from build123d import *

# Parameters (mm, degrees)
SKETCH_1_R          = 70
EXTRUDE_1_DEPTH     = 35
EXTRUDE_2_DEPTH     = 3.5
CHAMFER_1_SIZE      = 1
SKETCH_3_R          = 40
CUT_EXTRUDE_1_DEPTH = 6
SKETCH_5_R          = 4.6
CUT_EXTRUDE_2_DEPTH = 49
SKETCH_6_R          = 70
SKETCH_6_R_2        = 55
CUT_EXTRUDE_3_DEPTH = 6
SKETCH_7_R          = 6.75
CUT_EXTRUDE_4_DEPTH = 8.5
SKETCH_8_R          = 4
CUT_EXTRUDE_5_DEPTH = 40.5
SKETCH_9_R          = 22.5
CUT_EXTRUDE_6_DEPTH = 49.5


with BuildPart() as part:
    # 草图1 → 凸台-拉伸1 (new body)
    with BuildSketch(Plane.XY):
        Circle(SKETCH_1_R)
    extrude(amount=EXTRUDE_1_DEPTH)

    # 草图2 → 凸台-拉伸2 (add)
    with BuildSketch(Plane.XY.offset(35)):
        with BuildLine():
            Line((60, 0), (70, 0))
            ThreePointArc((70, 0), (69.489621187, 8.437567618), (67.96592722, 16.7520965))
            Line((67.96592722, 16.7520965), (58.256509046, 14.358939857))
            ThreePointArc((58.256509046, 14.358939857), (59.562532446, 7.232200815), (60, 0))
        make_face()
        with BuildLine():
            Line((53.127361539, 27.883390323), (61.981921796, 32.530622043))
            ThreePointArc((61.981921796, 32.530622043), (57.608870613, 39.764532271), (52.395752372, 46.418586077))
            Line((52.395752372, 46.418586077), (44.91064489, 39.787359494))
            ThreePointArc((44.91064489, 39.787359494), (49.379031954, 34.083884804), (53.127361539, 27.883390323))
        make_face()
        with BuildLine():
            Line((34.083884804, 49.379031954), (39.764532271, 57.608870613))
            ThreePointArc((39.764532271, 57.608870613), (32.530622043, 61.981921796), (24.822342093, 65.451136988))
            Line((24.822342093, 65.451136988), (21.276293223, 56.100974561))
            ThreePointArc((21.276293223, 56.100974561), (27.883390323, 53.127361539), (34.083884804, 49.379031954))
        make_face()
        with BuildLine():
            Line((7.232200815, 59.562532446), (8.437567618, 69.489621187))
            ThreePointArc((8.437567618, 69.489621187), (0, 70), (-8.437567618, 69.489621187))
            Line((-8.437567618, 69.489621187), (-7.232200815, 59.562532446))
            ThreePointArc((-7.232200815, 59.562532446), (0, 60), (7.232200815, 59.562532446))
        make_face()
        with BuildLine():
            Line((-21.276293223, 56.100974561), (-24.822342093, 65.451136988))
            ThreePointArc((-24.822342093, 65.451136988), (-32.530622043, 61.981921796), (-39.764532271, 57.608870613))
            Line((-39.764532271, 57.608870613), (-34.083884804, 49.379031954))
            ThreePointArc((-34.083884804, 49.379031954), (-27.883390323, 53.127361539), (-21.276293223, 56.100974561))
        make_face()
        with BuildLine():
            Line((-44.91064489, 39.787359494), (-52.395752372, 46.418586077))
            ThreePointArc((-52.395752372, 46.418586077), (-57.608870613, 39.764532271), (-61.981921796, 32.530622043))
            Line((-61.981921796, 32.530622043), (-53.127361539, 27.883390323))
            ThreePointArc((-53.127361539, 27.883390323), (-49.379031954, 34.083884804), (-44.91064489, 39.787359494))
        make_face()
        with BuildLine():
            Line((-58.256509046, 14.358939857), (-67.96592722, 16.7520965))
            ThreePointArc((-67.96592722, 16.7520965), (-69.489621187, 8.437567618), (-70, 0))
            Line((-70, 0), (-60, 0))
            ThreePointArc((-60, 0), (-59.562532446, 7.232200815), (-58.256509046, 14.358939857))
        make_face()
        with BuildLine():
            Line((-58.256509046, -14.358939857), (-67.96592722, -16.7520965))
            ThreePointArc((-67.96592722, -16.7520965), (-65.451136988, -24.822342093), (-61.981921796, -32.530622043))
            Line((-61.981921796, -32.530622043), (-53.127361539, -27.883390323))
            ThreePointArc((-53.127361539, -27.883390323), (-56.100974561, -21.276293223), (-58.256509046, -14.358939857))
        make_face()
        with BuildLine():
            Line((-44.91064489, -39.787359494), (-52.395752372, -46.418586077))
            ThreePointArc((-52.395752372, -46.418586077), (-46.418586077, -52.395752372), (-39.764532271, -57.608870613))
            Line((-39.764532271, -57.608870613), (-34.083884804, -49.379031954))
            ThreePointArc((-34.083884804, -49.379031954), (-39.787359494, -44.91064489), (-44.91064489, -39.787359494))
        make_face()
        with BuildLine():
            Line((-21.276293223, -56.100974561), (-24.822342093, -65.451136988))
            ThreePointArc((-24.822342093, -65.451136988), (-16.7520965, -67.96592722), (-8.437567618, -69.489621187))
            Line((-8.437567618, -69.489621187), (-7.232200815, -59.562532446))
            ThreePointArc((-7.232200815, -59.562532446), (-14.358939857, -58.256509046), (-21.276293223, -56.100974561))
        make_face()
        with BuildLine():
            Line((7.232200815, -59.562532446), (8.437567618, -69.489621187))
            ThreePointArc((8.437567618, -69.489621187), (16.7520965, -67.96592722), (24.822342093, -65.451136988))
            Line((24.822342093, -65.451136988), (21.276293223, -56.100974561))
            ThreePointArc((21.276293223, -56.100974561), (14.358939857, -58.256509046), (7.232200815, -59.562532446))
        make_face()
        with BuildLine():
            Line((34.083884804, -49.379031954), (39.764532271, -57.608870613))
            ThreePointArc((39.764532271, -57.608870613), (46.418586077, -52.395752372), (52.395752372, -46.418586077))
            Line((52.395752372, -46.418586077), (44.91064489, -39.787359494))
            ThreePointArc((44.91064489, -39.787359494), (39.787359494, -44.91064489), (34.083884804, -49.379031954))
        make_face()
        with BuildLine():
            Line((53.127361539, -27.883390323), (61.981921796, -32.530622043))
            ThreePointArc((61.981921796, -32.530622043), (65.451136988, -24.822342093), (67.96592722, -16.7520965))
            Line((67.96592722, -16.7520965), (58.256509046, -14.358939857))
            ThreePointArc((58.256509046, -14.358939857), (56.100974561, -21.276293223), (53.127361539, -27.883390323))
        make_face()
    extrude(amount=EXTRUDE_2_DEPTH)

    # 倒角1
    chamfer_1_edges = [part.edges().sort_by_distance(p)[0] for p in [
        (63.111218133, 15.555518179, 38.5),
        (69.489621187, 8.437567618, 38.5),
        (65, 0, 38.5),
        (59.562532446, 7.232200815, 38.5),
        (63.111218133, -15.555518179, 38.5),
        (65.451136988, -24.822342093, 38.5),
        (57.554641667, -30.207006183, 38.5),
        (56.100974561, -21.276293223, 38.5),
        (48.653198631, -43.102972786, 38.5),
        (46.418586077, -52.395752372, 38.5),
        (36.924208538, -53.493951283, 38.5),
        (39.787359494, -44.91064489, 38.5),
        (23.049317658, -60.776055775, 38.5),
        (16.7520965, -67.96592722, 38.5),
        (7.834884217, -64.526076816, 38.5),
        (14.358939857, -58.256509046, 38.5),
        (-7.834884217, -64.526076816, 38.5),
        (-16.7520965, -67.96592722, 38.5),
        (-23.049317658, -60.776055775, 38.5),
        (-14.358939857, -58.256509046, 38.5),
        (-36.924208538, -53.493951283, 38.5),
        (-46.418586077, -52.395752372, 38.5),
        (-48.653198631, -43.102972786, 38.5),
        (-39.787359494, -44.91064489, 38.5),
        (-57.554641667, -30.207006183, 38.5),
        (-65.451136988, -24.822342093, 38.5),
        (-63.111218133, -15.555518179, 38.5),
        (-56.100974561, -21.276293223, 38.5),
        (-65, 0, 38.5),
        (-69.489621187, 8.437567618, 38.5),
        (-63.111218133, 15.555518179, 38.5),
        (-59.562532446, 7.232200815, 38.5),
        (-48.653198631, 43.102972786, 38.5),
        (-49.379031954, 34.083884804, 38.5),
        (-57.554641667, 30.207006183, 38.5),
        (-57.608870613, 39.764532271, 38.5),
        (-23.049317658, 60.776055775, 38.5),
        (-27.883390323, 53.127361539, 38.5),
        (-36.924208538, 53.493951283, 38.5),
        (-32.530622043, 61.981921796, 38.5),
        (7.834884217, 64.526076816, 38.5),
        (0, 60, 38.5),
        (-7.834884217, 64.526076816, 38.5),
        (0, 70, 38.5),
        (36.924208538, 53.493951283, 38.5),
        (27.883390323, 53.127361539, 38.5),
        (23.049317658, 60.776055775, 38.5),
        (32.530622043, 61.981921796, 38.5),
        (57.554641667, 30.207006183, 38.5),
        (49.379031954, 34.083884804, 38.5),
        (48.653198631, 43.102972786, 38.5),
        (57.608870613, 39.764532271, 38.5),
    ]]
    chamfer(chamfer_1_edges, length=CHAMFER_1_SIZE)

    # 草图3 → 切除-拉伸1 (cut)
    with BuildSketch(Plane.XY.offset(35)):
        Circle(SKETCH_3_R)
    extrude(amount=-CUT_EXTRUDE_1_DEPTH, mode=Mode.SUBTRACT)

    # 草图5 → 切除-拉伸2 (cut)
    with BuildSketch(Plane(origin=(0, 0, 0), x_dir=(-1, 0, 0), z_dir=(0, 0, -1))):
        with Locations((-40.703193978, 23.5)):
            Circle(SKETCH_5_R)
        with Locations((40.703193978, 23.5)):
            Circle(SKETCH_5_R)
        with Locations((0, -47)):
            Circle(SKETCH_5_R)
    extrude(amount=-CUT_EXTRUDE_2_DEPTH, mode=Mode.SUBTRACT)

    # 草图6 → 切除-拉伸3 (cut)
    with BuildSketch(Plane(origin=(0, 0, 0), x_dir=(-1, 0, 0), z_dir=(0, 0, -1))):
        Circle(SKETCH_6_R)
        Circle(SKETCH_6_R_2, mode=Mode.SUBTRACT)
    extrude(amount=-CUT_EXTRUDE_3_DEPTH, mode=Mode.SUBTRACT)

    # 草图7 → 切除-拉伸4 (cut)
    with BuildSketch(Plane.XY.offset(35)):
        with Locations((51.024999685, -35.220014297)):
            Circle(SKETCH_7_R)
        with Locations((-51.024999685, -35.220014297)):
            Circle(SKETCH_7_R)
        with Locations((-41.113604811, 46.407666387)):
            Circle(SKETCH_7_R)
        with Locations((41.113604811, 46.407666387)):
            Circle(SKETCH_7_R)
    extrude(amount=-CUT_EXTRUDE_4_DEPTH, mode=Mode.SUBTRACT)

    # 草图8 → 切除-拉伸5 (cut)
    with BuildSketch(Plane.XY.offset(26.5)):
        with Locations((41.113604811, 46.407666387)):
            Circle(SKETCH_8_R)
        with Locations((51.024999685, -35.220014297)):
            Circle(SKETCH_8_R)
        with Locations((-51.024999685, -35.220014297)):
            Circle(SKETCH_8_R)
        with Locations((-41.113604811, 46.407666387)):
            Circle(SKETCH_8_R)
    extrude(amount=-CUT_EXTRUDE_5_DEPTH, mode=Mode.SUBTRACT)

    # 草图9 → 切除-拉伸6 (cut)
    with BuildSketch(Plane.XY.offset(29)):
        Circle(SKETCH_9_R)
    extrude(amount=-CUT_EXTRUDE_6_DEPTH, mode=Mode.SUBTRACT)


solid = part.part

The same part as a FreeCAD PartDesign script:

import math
import FreeCAD as App
import Part
import Sketcher

V = App.Vector
Q = App.Units.Quantity


def edges_at(feature, points):
    """Names of the edges that pass closest to the given points."""
    edges = feature.Shape.Edges
    near = lambda p: min(range(len(edges)), key=lambda i: edges[i].distToShape(Part.Vertex(*p))[0])
    return sorted({f"Edge{near(p) + 1}" for p in points})

doc = App.newDocument("Part")
body = doc.addObject("PartDesign::Body", "Body")

sketch1 = body.newObject("Sketcher::SketchObject", "Sketch")
sketch1.AttachmentSupport = (doc.getObject("XY_Plane"), [""])
sketch1.MapMode = "FlatFace"
sketch1.addGeometry(Part.Circle(V(0, 0, 0), V(0, 0, 1), 70), False)
sketch1.addConstraint([
    Sketcher.Constraint("Coincident", 0, 3, -1, 1),
    Sketcher.Constraint("Diameter", 0, Q("140 mm")),
])
pad1 = body.newObject("PartDesign::Pad", "Pad")
pad1.Profile = sketch1
pad1.Length = 35

sketch2 = body.newObject("Sketcher::SketchObject", "Sketch001")
sketch2.AttachmentSupport = (doc.getObject("XY_Plane"), [""])
sketch2.MapMode = "FlatFace"
sketch2.AttachmentOffset = App.Placement(V(0, 0, 35), App.Rotation())
sketch2.addGeometry([
    Part.LineSegment(V(60, 0, 0), V(70, 0, 0)),
    Part.ArcOfCircle(Part.Circle(V(0, 0, 0), V(0, 0, 1), 70), math.radians(0), math.radians(13.85)),
    Part.LineSegment(V(68, 17, 0), V(58, 14, 0)),
    Part.ArcOfCircle(Part.Circle(V(0, 0, 0), V(0, 0, 1), 60), math.radians(0), math.radians(13.85)),
    Part.LineSegment(V(53, 28, 0), V(62, 33, 0)),
    Part.ArcOfCircle(Part.Circle(V(0, 0, 0), V(0, 0, 1), 70), math.radians(27.69), math.radians(41.54)),
    Part.LineSegment(V(52, 46, 0), V(45, 40, 0)),
    Part.ArcOfCircle(Part.Circle(V(0, 0, 0), V(0, 0, 1), 60), math.radians(27.69), math.radians(41.54)),
    Part.LineSegment(V(34, 49, 0), V(40, 58, 0)),
    Part.ArcOfCircle(Part.Circle(V(0, 0, 0), V(0, 0, 1), 70), math.radians(55.38), math.radians(69.23)),
    Part.LineSegment(V(25, 65, 0), V(21, 56, 0)),
    Part.ArcOfCircle(Part.Circle(V(0, 0, 0), V(0, 0, 1), 60), math.radians(55.38), math.radians(69.23)),
    Part.LineSegment(V(7, 60, 0), V(8, 69, 0)),
    Part.ArcOfCircle(Part.Circle(V(0, 0, 0), V(0, 0, 1), 70), math.radians(83.08), math.radians(96.92)),
    Part.LineSegment(V(-8, 69, 0), V(-7, 60, 0)),
    Part.ArcOfCircle(Part.Circle(V(0, 0, 0), V(0, 0, 1), 60), math.radians(83.08), math.radians(96.92)),
    Part.LineSegment(V(-21, 56, 0), V(-25, 65, 0)),
    Part.ArcOfCircle(Part.Circle(V(0, 0, 0), V(0, 0, 1), 70), math.radians(110.77), math.radians(124.62)),
    Part.LineSegment(V(-40, 58, 0), V(-34, 49, 0)),
    Part.ArcOfCircle(Part.Circle(V(0, 0, 0), V(0, 0, 1), 60), math.radians(110.77), math.radians(124.62)),
    Part.LineSegment(V(-45, 40, 0), V(-52, 46, 0)),
    Part.ArcOfCircle(Part.Circle(V(0, 0, 0), V(0, 0, 1), 70), math.radians(138.46), math.radians(152.31)),
    Part.LineSegment(V(-62, 33, 0), V(-53, 28, 0)),
    Part.ArcOfCircle(Part.Circle(V(0, 0, 0), V(0, 0, 1), 60), math.radians(138.46), math.radians(152.31)),
    Part.LineSegment(V(-58, 14, 0), V(-68, 17, 0)),
    Part.ArcOfCircle(Part.Circle(V(0, 0, 0), V(0, 0, 1), 70), math.radians(166.15), math.radians(180)),
    Part.LineSegment(V(-70, 0, 0), V(-60, 0, 0)),
    Part.ArcOfCircle(Part.Circle(V(0, 0, 0), V(0, 0, 1), 60), math.radians(166.15), math.radians(180)),
    Part.LineSegment(V(-58, -14, 0), V(-68, -17, 0)),
    Part.ArcOfCircle(Part.Circle(V(0, 0, 0), V(0, 0, 1), 70), math.radians(-166.15), math.radians(-152.31)),
    Part.LineSegment(V(-62, -33, 0), V(-53, -28, 0)),
    Part.ArcOfCircle(Part.Circle(V(0, 0, 0), V(0, 0, 1), 60), math.radians(-166.15), math.radians(-152.31)),
    Part.LineSegment(V(-45, -40, 0), V(-52, -46, 0)),
    Part.ArcOfCircle(Part.Circle(V(0, 0, 0), V(0, 0, 1), 70), math.radians(-138.46), math.radians(-124.62)),
    Part.LineSegment(V(-40, -58, 0), V(-34, -49, 0)),
    Part.ArcOfCircle(Part.Circle(V(0, 0, 0), V(0, 0, 1), 60), math.radians(-138.46), math.radians(-124.62)),
    Part.LineSegment(V(-21, -56, 0), V(-25, -65, 0)),
    Part.ArcOfCircle(Part.Circle(V(0, 0, 0), V(0, 0, 1), 70), math.radians(-110.77), math.radians(-96.92)),
    Part.LineSegment(V(-8, -69, 0), V(-7, -60, 0)),
    Part.ArcOfCircle(Part.Circle(V(0, 0, 0), V(0, 0, 1), 60), math.radians(-110.77), math.radians(-96.92)),
    Part.LineSegment(V(7, -60, 0), V(8, -69, 0)),
    Part.ArcOfCircle(Part.Circle(V(0, 0, 0), V(0, 0, 1), 70), math.radians(-83.08), math.radians(-69.23)),
    Part.LineSegment(V(25, -65, 0), V(21, -56, 0)),
    Part.ArcOfCircle(Part.Circle(V(0, 0, 0), V(0, 0, 1), 60), math.radians(-83.08), math.radians(-69.23)),
    Part.LineSegment(V(34, -49, 0), V(40, -58, 0)),
    Part.ArcOfCircle(Part.Circle(V(0, 0, 0), V(0, 0, 1), 70), math.radians(-55.38), math.radians(-41.54)),
    Part.LineSegment(V(52, -46, 0), V(45, -40, 0)),
    Part.ArcOfCircle(Part.Circle(V(0, 0, 0), V(0, 0, 1), 60), math.radians(-55.38), math.radians(-41.54)),
    Part.LineSegment(V(53, -28, 0), V(62, -33, 0)),
    Part.ArcOfCircle(Part.Circle(V(0, 0, 0), V(0, 0, 1), 70), math.radians(-27.69), math.radians(-13.85)),
    Part.LineSegment(V(68, -17, 0), V(58, -14, 0)),
    Part.ArcOfCircle(Part.Circle(V(0, 0, 0), V(0, 0, 1), 60), math.radians(-27.69), math.radians(-13.85)),
], False)
sketch2.addConstraint([
    Sketcher.Constraint("Coincident", 0, 2, 1, 1),
    Sketcher.Constraint("Coincident", 1, 2, 2, 1),
    Sketcher.Constraint("Coincident", 2, 2, 3, 2),
    Sketcher.Constraint("Coincident", 3, 1, 0, 1),
    Sketcher.Constraint("Coincident", 4, 2, 5, 1),
    Sketcher.Constraint("Coincident", 5, 2, 6, 1),
    Sketcher.Constraint("Coincident", 6, 2, 7, 2),
    Sketcher.Constraint("Coincident", 7, 1, 4, 1),
    Sketcher.Constraint("Coincident", 8, 2, 9, 1),
    Sketcher.Constraint("Coincident", 9, 2, 10, 1),
    Sketcher.Constraint("Coincident", 10, 2, 11, 2),
    Sketcher.Constraint("Coincident", 11, 1, 8, 1),
    Sketcher.Constraint("Coincident", 12, 2, 13, 1),
    Sketcher.Constraint("Coincident", 13, 2, 14, 1),
    Sketcher.Constraint("Coincident", 14, 2, 15, 2),
    Sketcher.Constraint("Coincident", 15, 1, 12, 1),
    Sketcher.Constraint("Coincident", 16, 2, 17, 1),
    Sketcher.Constraint("Coincident", 17, 2, 18, 1),
    Sketcher.Constraint("Coincident", 18, 2, 19, 2),
    Sketcher.Constraint("Coincident", 19, 1, 16, 1),
    Sketcher.Constraint("Coincident", 20, 2, 21, 1),
    Sketcher.Constraint("Coincident", 21, 2, 22, 1),
    Sketcher.Constraint("Coincident", 22, 2, 23, 2),
    Sketcher.Constraint("Coincident", 23, 1, 20, 1),
    Sketcher.Constraint("Coincident", 24, 2, 25, 1),
    Sketcher.Constraint("Coincident", 25, 2, 26, 1),
    Sketcher.Constraint("Coincident", 26, 2, 27, 2),
    Sketcher.Constraint("Coincident", 27, 1, 24, 1),
    Sketcher.Constraint("Coincident", 28, 2, 29, 1),
    Sketcher.Constraint("Coincident", 29, 2, 30, 1),
    Sketcher.Constraint("Coincident", 30, 2, 31, 2),
    Sketcher.Constraint("Coincident", 31, 1, 28, 1),
    Sketcher.Constraint("Coincident", 32, 2, 33, 1),
    Sketcher.Constraint("Coincident", 33, 2, 34, 1),
    Sketcher.Constraint("Coincident", 34, 2, 35, 2),
    Sketcher.Constraint("Coincident", 35, 1, 32, 1),
    Sketcher.Constraint("Coincident", 36, 2, 37, 1),
    Sketcher.Constraint("Coincident", 37, 2, 38, 1),
    Sketcher.Constraint("Coincident", 38, 2, 39, 2),
    Sketcher.Constraint("Coincident", 39, 1, 36, 1),
    Sketcher.Constraint("Coincident", 40, 2, 41, 1),
    Sketcher.Constraint("Coincident", 41, 2, 42, 1),
    Sketcher.Constraint("Coincident", 42, 2, 43, 2),
    Sketcher.Constraint("Coincident", 43, 1, 40, 1),
    Sketcher.Constraint("Coincident", 44, 2, 45, 1),
    Sketcher.Constraint("Coincident", 45, 2, 46, 1),
    Sketcher.Constraint("Coincident", 46, 2, 47, 2),
    Sketcher.Constraint("Coincident", 47, 1, 44, 1),
    Sketcher.Constraint("Coincident", 48, 2, 49, 1),
    Sketcher.Constraint("Coincident", 49, 2, 50, 1),
    Sketcher.Constraint("Coincident", 50, 2, 51, 2),
    Sketcher.Constraint("Coincident", 51, 1, 48, 1),
    Sketcher.Constraint("Horizontal", 0),
    Sketcher.Constraint("Horizontal", 26),
    Sketcher.Constraint("Coincident", 1, 3, -1, 1),
    Sketcher.Constraint("Coincident", 3, 3, -1, 1),
    Sketcher.Constraint("Coincident", 5, 3, -1, 1),
    Sketcher.Constraint("Coincident", 7, 3, -1, 1),
    Sketcher.Constraint("Coincident", 9, 3, -1, 1),
    Sketcher.Constraint("Coincident", 11, 3, -1, 1),
    Sketcher.Constraint("Coincident", 13, 3, -1, 1),
    Sketcher.Constraint("Coincident", 15, 3, -1, 1),
    Sketcher.Constraint("Coincident", 17, 3, -1, 1),
    Sketcher.Constraint("Coincident", 19, 3, -1, 1),
    Sketcher.Constraint("Coincident", 21, 3, -1, 1),
    Sketcher.Constraint("Coincident", 23, 3, -1, 1),
    Sketcher.Constraint("Coincident", 25, 3, -1, 1),
    Sketcher.Constraint("Coincident", 27, 3, -1, 1),
    Sketcher.Constraint("Coincident", 29, 3, -1, 1),
    Sketcher.Constraint("Coincident", 31, 3, -1, 1),
    Sketcher.Constraint("Coincident", 33, 3, -1, 1),
    Sketcher.Constraint("Coincident", 35, 3, -1, 1),
    Sketcher.Constraint("Coincident", 37, 3, -1, 1),
    Sketcher.Constraint("Coincident", 39, 3, -1, 1),
    Sketcher.Constraint("Coincident", 41, 3, -1, 1),
    Sketcher.Constraint("Coincident", 43, 3, -1, 1),
    Sketcher.Constraint("Coincident", 45, 3, -1, 1),
    Sketcher.Constraint("Coincident", 47, 3, -1, 1),
    Sketcher.Constraint("Coincident", 49, 3, -1, 1),
    Sketcher.Constraint("Coincident", 51, 3, -1, 1),
    Sketcher.Constraint("Equal", 1, 5),
    Sketcher.Constraint("Equal", 3, 7),
    Sketcher.Constraint("Equal", 5, 9),
    Sketcher.Constraint("Equal", 7, 11),
    Sketcher.Constraint("Equal", 9, 13),
    Sketcher.Constraint("Equal", 11, 15),
    Sketcher.Constraint("Equal", 13, 17),
    Sketcher.Constraint("Equal", 15, 19),
    Sketcher.Constraint("Equal", 17, 21),
    Sketcher.Constraint("Equal", 19, 23),
    Sketcher.Constraint("Equal", 21, 25),
    Sketcher.Constraint("Equal", 23, 27),
    Sketcher.Constraint("Equal", 25, 29),
    Sketcher.Constraint("Equal", 27, 31),
    Sketcher.Constraint("Equal", 29, 33),
    Sketcher.Constraint("Equal", 31, 35),
    Sketcher.Constraint("Equal", 33, 37),
    Sketcher.Constraint("Equal", 35, 39),
    Sketcher.Constraint("Equal", 37, 41),
    Sketcher.Constraint("Equal", 39, 43),
    Sketcher.Constraint("Equal", 41, 45),
    Sketcher.Constraint("Equal", 43, 47),
    Sketcher.Constraint("Equal", 45, 49),
    Sketcher.Constraint("Equal", 47, 51),
    Sketcher.Constraint("PointOnObject", 0, 2, -1),
    Sketcher.Constraint("PointOnObject", 25, 2, -1),
    Sketcher.Constraint("Parallel", 2, 28),
    Sketcher.Constraint("Parallel", 4, 30),
    Sketcher.Constraint("Parallel", 6, 32),
    Sketcher.Constraint("Parallel", 8, 34),
    Sketcher.Constraint("Parallel", 10, 36),
    Sketcher.Constraint("Parallel", 12, 38),
    Sketcher.Constraint("Parallel", 14, 40),
    Sketcher.Constraint("Parallel", 16, 42),
    Sketcher.Constraint("Parallel", 18, 44),
    Sketcher.Constraint("Parallel", 20, 46),
    Sketcher.Constraint("Parallel", 22, 48),
    Sketcher.Constraint("Parallel", 24, 50),
    Sketcher.Constraint("Horizontal", 12, 2, 13, 2),
    Sketcher.Constraint("Horizontal", 14, 2, 15, 1),
    Sketcher.Constraint("Horizontal", 9, 2, 16, 2),
    Sketcher.Constraint("Horizontal", 8, 2, 17, 2),
    Sketcher.Constraint("Horizontal", 11, 1, 18, 2),
    Sketcher.Constraint("Horizontal", 10, 2, 19, 1),
    Sketcher.Constraint("Horizontal", 5, 2, 20, 2),
    Sketcher.Constraint("Horizontal", 4, 2, 21, 2),
    Sketcher.Constraint("Horizontal", 7, 1, 22, 2),
    Sketcher.Constraint("Horizontal", 6, 2, 23, 1),
    Sketcher.Constraint("Horizontal", 1, 2, 24, 2),
    Sketcher.Constraint("Horizontal", 2, 2, 27, 1),
    Sketcher.Constraint("Horizontal", 37, 2, 40, 2),
    Sketcher.Constraint("Horizontal", 36, 2, 41, 2),
    Sketcher.Constraint("Horizontal", 33, 2, 44, 2),
    Sketcher.Constraint("Horizontal", 32, 2, 45, 2),
    Sketcher.Constraint("Horizontal", 29, 2, 48, 2),
    Sketcher.Constraint("Horizontal", 28, 2, 49, 2),
    Sketcher.Constraint("Vertical", 24, 2, 28, 2),
    Sketcher.Constraint("Vertical", 21, 2, 29, 2),
    Sketcher.Constraint("Vertical", 20, 2, 32, 2),
    Sketcher.Constraint("Vertical", 17, 2, 33, 2),
    Sketcher.Constraint("Vertical", 16, 2, 36, 2),
    Sketcher.Constraint("Vertical", 13, 2, 37, 2),
    Sketcher.Constraint("Radius", 1, Q("70 mm")),
    Sketcher.Constraint("Radius", 3, Q("60 mm")),
    Sketcher.Constraint("DistanceX", 14, 2, -1, 1, Q("7.232201 mm")),
    Sketcher.Constraint("DistanceX", -1, 1, 2, 2, Q("58.256509 mm")),
    Sketcher.Constraint("DistanceX", -1, 1, 4, 2, Q("61.981922 mm")),
    Sketcher.Constraint("DistanceY", -1, 1, 6, 2, Q("39.787359 mm")),
    Sketcher.Constraint("DistanceX", -1, 1, 7, 1, Q("53.127362 mm")),
    Sketcher.Constraint("DistanceY", -1, 1, 8, 2, Q("57.608871 mm")),
    Sketcher.Constraint("DistanceY", -1, 1, 11, 1, Q("49.379032 mm")),
    Sketcher.Constraint("DistanceY", -1, 1, 12, 2, Q("69.489621 mm")),
    Sketcher.Constraint("DistanceX", -1, 1, 1, 2, Q("67.965927 mm")),
    Sketcher.Constraint("DistanceX", -1, 1, 5, 2, Q("52.395752 mm")),
    Sketcher.Constraint("DistanceX", -1, 1, 9, 2, Q("24.822342 mm")),
    Sketcher.Constraint("DistanceX", -1, 1, 10, 2, Q("21.276293 mm")),
])
pad2 = body.newObject("PartDesign::Pad", "Pad001")
pad2.Profile = sketch2
pad2.Length = 3.5
doc.recompute()

chamfer = body.newObject("PartDesign::Chamfer", "Chamfer")
chamfer.Base = (pad2, edges_at(pad2, [
    (63.111, 15.556, 38.5),
    (69.49, 8.438, 38.5),
    (65, 0, 38.5),
    (59.563, 7.232, 38.5),
    (63.111, -15.556, 38.5),
    (65.451, -24.822, 38.5),
    (57.555, -30.207, 38.5),
    (56.101, -21.276, 38.5),
    (48.653, -43.103, 38.5),
    (46.419, -52.396, 38.5),
    (36.924, -53.494, 38.5),
    (39.787, -44.911, 38.5),
    (23.049, -60.776, 38.5),
    (16.752, -67.966, 38.5),
    (7.835, -64.526, 38.5),
    (14.359, -58.257, 38.5),
    (-7.835, -64.526, 38.5),
    (-16.752, -67.966, 38.5),
    (-23.049, -60.776, 38.5),
    (-14.359, -58.257, 38.5),
    (-36.924, -53.494, 38.5),
    (-46.419, -52.396, 38.5),
    (-48.653, -43.103, 38.5),
    (-39.787, -44.911, 38.5),
    (-57.555, -30.207, 38.5),
    (-65.451, -24.822, 38.5),
    (-63.111, -15.556, 38.5),
    (-56.101, -21.276, 38.5),
    (-65, 0, 38.5),
    (-69.49, 8.438, 38.5),
    (-63.111, 15.556, 38.5),
    (-59.563, 7.232, 38.5),
    (-48.653, 43.103, 38.5),
    (-49.379, 34.084, 38.5),
    (-57.555, 30.207, 38.5),
    (-57.609, 39.765, 38.5),
    (-23.049, 60.776, 38.5),
    (-27.883, 53.127, 38.5),
    (-36.924, 53.494, 38.5),
    (-32.531, 61.982, 38.5),
    (7.835, 64.526, 38.5),
    (0, 60, 38.5),
    (-7.835, 64.526, 38.5),
    (0, 70, 38.5),
    (36.924, 53.494, 38.5),
    (27.883, 53.127, 38.5),
    (23.049, 60.776, 38.5),
    (32.531, 61.982, 38.5),
    (57.555, 30.207, 38.5),
    (49.379, 34.084, 38.5),
    (48.653, 43.103, 38.5),
    (57.609, 39.765, 38.5),
]))
chamfer.Size = 1

sketch3 = body.newObject("Sketcher::SketchObject", "Sketch002")
sketch3.AttachmentSupport = (doc.getObject("XY_Plane"), [""])
sketch3.MapMode = "FlatFace"
sketch3.AttachmentOffset = App.Placement(V(0, 0, 35), App.Rotation())
sketch3.addGeometry(Part.Circle(V(0, 0, 0), V(0, 0, 1), 40), False)
sketch3.addConstraint([
    Sketcher.Constraint("Coincident", 0, 3, -1, 1),
    Sketcher.Constraint("Diameter", 0, Q("80 mm")),
])
pocket1 = body.newObject("PartDesign::Pocket", "Pocket")
pocket1.Profile = sketch3
pocket1.Length = 6

sketch4 = body.newObject("Sketcher::SketchObject", "Sketch003")
sketch4.AttachmentSupport = (doc.getObject("XY_Plane"), [""])
sketch4.MapMode = "FlatFace"
sketch4.addGeometry([
    Part.Circle(V(40.7, 23.5, 0), V(0, 0, 1), 4.6),
    Part.Circle(V(-40.7, 23.5, 0), V(0, 0, 1), 4.6),
    Part.Circle(V(0, -47, 0), V(0, 0, 1), 4.6),
], False)
sketch4.addConstraint([
    Sketcher.Constraint("Equal", 0, 1),
    Sketcher.Constraint("Equal", 1, 2),
    Sketcher.Constraint("Symmetric", 0, 3, 1, 3, -2),
    Sketcher.Constraint("PointOnObject", 2, 3, -2),
    Sketcher.Constraint("Diameter", 0, Q("9.2 mm")),
    Sketcher.Constraint("DistanceY", 2, 3, -1, 1, Q("47 mm")),
    Sketcher.Constraint("DistanceY", -1, 1, 0, 3, Q("23.5 mm")),
    Sketcher.Constraint("DistanceX", -1, 1, 0, 3, Q("40.703194 mm")),
])
pocket2 = body.newObject("PartDesign::Pocket", "Pocket001")
pocket2.Profile = sketch4
pocket2.Length = 49
pocket2.Reversed = True

sketch5 = body.newObject("Sketcher::SketchObject", "Sketch004")
sketch5.AttachmentSupport = (doc.getObject("XY_Plane"), [""])
sketch5.MapMode = "FlatFace"
sketch5.addGeometry([
    Part.Circle(V(0, 0, 0), V(0, 0, 1), 70),
    Part.Circle(V(0, 0, 0), V(0, 0, 1), 55),
], False)
sketch5.addConstraint([
    Sketcher.Constraint("Coincident", 0, 3, -1, 1),
    Sketcher.Constraint("Coincident", 1, 3, -1, 1),
    Sketcher.Constraint("Diameter", 0, Q("140 mm")),
    Sketcher.Constraint("Diameter", 1, Q("110 mm")),
])
pocket3 = body.newObject("PartDesign::Pocket", "Pocket002")
pocket3.Profile = sketch5
pocket3.Length = 6
pocket3.Reversed = True

sketch6 = body.newObject("Sketcher::SketchObject", "Sketch005")
sketch6.AttachmentSupport = (doc.getObject("XY_Plane"), [""])
sketch6.MapMode = "FlatFace"
sketch6.AttachmentOffset = App.Placement(V(0, 0, 35), App.Rotation())
sketch6.addGeometry([
    Part.Circle(V(51, -35, 0), V(0, 0, 1), 7),
    Part.Circle(V(-51, -35, 0), V(0, 0, 1), 7),
    Part.Circle(V(-41, 46, 0), V(0, 0, 1), 7),
    Part.Circle(V(41, 46, 0), V(0, 0, 1), 7),
], False)
sketch6.addConstraint([
    Sketcher.Constraint("Equal", 0, 1),
    Sketcher.Constraint("Equal", 1, 2),
    Sketcher.Constraint("Equal", 2, 3),
    Sketcher.Constraint("Symmetric", 0, 3, 1, 3, -2),
    Sketcher.Constraint("Symmetric", 2, 3, 3, 3, -2),
    Sketcher.Constraint("Diameter", 0, Q("13.5 mm")),
    Sketcher.Constraint("DistanceX", 1, 3, 0, 3, Q("102.049999 mm")),
    Sketcher.Constraint("DistanceY", 1, 3, 2, 3, Q("81.627681 mm")),
    Sketcher.Constraint("DistanceX", 2, 3, 3, 3, Q("82.22721 mm")),
    Sketcher.Constraint("DistanceY", 0, 3, -1, 1, Q("35.220014 mm")),
])
pocket4 = body.newObject("PartDesign::Pocket", "Pocket003")
pocket4.Profile = sketch6
pocket4.Length = 8.5

sketch7 = body.newObject("Sketcher::SketchObject", "Sketch006")
sketch7.AttachmentSupport = (doc.getObject("XY_Plane"), [""])
sketch7.MapMode = "FlatFace"
sketch7.AttachmentOffset = App.Placement(V(0, 0, 26.5), App.Rotation())
sketch7.addGeometry([
    Part.Circle(V(41.1, 46.4, 0), V(0, 0, 1), 4),
    Part.Circle(V(51, -35.2, 0), V(0, 0, 1), 4),
    Part.Circle(V(-51, -35.2, 0), V(0, 0, 1), 4),
    Part.Circle(V(-41.1, 46.4, 0), V(0, 0, 1), 4),
], False)
sketch7.addConstraint([
    Sketcher.Constraint("Equal", 0, 1),
    Sketcher.Constraint("Equal", 1, 2),
    Sketcher.Constraint("Equal", 2, 3),
    Sketcher.Constraint("Symmetric", 1, 3, 2, 3, -2),
    Sketcher.Constraint("Symmetric", 0, 3, 3, 3, -2),
    Sketcher.Constraint("Diameter", 0, Q("8 mm")),
    Sketcher.Constraint("DistanceX", 2, 3, 1, 3, Q("102.049999 mm")),
    Sketcher.Constraint("DistanceY", 1, 3, 0, 3, Q("81.627681 mm")),
    Sketcher.Constraint("DistanceX", 3, 3, 0, 3, Q("82.22721 mm")),
    Sketcher.Constraint("DistanceY", -1, 1, 0, 3, Q("46.407666 mm")),
])
pocket5 = body.newObject("PartDesign::Pocket", "Pocket004")
pocket5.Profile = sketch7
pocket5.Length = 40.5

sketch8 = body.newObject("Sketcher::SketchObject", "Sketch007")
sketch8.AttachmentSupport = (doc.getObject("XY_Plane"), [""])
sketch8.MapMode = "FlatFace"
sketch8.AttachmentOffset = App.Placement(V(0, 0, 29), App.Rotation())
sketch8.addGeometry(Part.Circle(V(0, 0, 0), V(0, 0, 1), 22), False)
sketch8.addConstraint([
    Sketcher.Constraint("Coincident", 0, 3, -1, 1),
    Sketcher.Constraint("Diameter", 0, Q("45 mm")),
])
pocket6 = body.newObject("PartDesign::Pocket", "Pocket005")
pocket6.Profile = sketch8
pocket6.Length = 49.5

doc.recompute()
